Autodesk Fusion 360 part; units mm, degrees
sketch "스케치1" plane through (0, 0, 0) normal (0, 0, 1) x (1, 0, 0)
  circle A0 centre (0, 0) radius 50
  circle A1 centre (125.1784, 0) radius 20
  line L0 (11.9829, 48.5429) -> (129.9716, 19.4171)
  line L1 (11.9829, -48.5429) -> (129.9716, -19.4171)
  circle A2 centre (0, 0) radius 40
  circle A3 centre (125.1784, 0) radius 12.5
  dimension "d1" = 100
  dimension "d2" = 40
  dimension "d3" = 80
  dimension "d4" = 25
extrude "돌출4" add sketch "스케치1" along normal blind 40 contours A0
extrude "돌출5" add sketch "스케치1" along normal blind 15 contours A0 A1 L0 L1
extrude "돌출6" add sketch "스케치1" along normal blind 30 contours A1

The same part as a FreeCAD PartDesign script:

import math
import FreeCAD as App
import Part
import Sketcher
from FreeCAD import Vector
Q = App.Units.Quantity

doc = App.newDocument("Part")
body = doc.addObject("PartDesign::Body", "Body")

# Sketch on XY plane
sketch1 = body.newObject("Sketcher::SketchObject", "Sketch")
sketch1.AttachmentSupport = (doc.getObject("XY_Plane"), [""])
sketch1.MapMode = "FlatFace"
sketch1.addGeometry([
    Part.Circle(Vector(0, 0, 0), Vector(0, 0, 1), 50),
    Part.Circle(Vector(0, 0, 0), Vector(0, 0, 1), 40),
], False)
sketch1.addConstraint([
    Sketcher.Constraint("Coincident", 0, 3, -1, 1),
    Sketcher.Constraint("Coincident", 1, 3, -1, 1),
    Sketcher.Constraint("Diameter", 0, Q("100 mm")),
    Sketcher.Constraint("Diameter", 1, Q("80 mm")),
])
pad1 = body.newObject("PartDesign::Pad", "Pad")
pad1.Profile = sketch1
pad1.Length = 40

# Sketch on XY plane
sketch2 = body.newObject("Sketcher::SketchObject", "Sketch001")
sketch2.AttachmentSupport = (doc.getObject("XY_Plane"), [""])
sketch2.MapMode = "FlatFace"
sketch2.addGeometry([
    Part.ArcOfCircle(Part.Circle(Vector(0, 0, 0), Vector(0, 0, 1), 50), math.radians(-76.133652), math.radians(76.133652)),
    Part.LineSegment(Vector(11.9829, -48.5429, 0), Vector(129.9716, -19.4171, 0)),
    Part.ArcOfCircle(Part.Circle(Vector(125.1784, 0, 0), Vector(0, 0, 1), 20), math.radians(76.1335), math.radians(283.8665)),
    Part.LineSegment(Vector(129.9716, 19.4171, 0), Vector(11.9829, 48.5429, 0)),
], False)
sketch2.addConstraint([
    Sketcher.Constraint("Tangent", 0, 1, 1, 1),
    Sketcher.Constraint("Tangent", 1, 2, 2, 2),
    Sketcher.Constraint("Tangent", 2, 1, 3, 1),
    Sketcher.Constraint("Tangent", 3, 2, 0, 2),
    Sketcher.Constraint("Coincident", 0, 3, -1, 1),
    Sketcher.Constraint("PointOnObject", 2, 3, -1),
    Sketcher.Constraint("Radius", 0, Q("50 mm")),
    Sketcher.Constraint("Radius", 2, Q("20 mm")),
    Sketcher.Constraint("DistanceY", 1, 2, 3, 2, Q("67.96 mm")),
])
pad2 = body.newObject("PartDesign::Pad", "Pad001")
pad2.Profile = sketch2
pad2.Length = 15

# Sketch on XY plane
sketch3 = body.newObject("Sketcher::SketchObject", "Sketch002")
sketch3.AttachmentSupport = (doc.getObject("XY_Plane"), [""])
sketch3.MapMode = "FlatFace"
sketch3.addGeometry([
    Part.Circle(Vector(125.1784, 0, 0), Vector(0, 0, 1), 20),
    Part.Circle(Vector(125.1784, 0, 0), Vector(0, 0, 1), 12.5),
], False)
sketch3.addConstraint([
    Sketcher.Constraint("Coincident", 1, 3, 0, 3),
    Sketcher.Constraint("PointOnObject", 0, 3, -1),
    Sketcher.Constraint("Diameter", 0, Q("40 mm")),
    Sketcher.Constraint("Diameter", 1, Q("25 mm")),
    Sketcher.Constraint("DistanceX", -1, 1, 0, 3, Q("125.1784 mm")),
])
pad3 = body.newObject("PartDesign::Pad", "Pad002")
pad3.Profile = sketch3
pad3.Length = 30

doc.recompute()
